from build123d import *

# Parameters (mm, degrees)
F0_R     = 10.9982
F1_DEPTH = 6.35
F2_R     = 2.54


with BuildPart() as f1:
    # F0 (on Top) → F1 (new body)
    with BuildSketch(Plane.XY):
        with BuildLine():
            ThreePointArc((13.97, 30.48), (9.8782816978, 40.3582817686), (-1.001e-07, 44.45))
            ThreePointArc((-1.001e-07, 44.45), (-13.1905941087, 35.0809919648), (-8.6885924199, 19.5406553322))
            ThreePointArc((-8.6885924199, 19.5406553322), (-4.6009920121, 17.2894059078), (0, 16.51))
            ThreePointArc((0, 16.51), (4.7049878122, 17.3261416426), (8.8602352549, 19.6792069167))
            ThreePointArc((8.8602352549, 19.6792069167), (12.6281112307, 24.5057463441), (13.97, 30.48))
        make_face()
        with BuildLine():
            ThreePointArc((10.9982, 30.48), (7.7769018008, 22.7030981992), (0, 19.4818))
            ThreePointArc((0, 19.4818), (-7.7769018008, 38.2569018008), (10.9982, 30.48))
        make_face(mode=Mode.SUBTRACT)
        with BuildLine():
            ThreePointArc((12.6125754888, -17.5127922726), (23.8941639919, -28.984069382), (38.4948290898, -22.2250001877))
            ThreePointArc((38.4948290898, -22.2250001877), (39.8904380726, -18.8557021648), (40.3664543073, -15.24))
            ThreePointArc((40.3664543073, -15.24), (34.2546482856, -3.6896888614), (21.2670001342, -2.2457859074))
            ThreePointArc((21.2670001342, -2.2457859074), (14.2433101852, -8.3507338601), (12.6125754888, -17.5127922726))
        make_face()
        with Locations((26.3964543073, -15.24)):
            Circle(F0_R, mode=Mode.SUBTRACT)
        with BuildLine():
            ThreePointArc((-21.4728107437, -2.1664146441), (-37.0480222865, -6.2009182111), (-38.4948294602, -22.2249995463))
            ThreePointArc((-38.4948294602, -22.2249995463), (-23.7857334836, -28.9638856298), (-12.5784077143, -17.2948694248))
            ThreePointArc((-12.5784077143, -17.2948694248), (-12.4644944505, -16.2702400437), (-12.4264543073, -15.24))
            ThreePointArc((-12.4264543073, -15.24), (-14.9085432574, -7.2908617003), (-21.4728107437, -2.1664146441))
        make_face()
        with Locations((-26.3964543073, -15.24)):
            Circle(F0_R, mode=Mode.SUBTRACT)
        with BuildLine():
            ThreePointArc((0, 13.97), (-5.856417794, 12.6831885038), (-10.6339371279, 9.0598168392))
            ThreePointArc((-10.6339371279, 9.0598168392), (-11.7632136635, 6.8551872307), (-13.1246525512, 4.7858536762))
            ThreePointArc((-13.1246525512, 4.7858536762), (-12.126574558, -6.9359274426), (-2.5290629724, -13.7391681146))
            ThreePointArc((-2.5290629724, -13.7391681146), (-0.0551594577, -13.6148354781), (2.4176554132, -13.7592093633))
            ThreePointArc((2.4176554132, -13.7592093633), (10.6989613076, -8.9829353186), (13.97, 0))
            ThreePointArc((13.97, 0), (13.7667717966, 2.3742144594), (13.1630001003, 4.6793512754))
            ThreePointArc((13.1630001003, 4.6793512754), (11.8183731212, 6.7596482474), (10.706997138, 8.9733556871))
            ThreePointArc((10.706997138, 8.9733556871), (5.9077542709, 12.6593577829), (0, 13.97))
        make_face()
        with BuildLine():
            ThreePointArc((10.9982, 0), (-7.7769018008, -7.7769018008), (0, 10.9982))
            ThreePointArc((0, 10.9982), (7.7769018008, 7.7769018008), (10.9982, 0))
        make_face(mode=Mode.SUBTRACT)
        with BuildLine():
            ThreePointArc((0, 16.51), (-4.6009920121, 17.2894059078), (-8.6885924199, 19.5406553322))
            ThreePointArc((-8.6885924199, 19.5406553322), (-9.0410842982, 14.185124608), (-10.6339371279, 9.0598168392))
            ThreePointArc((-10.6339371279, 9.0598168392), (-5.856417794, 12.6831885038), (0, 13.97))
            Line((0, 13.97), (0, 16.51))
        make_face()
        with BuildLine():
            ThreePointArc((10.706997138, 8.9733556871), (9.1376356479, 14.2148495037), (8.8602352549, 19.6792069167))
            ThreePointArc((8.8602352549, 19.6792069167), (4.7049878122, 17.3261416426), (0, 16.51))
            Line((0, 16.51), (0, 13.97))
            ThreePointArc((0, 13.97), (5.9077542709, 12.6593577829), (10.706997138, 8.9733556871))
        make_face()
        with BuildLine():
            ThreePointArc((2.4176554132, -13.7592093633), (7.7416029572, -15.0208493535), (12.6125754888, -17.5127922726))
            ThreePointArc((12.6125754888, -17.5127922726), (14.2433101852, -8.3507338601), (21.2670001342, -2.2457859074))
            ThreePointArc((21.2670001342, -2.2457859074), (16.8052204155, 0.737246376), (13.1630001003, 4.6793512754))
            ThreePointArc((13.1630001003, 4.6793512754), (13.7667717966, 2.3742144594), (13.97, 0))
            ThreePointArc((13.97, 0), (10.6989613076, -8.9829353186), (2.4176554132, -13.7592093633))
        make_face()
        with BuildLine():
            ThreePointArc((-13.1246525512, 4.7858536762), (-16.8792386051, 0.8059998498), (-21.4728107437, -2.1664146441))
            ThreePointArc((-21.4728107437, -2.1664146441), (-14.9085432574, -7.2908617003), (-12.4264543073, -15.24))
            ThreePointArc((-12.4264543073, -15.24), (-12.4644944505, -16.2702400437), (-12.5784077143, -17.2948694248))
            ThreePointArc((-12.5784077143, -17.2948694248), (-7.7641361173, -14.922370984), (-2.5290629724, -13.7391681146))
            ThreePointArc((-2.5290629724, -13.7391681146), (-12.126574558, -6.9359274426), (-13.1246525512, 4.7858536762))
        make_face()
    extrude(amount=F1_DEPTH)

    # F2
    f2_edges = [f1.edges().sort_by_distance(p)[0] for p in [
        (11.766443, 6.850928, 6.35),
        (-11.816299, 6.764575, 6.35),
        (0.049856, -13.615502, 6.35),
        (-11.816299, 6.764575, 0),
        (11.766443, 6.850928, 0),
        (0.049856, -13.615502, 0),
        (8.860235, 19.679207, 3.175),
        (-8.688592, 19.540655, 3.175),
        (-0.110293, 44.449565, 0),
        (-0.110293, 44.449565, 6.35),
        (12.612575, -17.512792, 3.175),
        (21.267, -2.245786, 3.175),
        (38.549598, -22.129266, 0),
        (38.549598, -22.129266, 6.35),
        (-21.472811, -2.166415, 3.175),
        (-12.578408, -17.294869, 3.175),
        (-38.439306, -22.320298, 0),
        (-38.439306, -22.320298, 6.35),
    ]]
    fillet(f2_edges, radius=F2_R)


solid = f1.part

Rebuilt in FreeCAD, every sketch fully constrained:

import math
import FreeCAD as App
import Part
import Sketcher
Q = App.Units.Quantity


def edges_at(feature, points):
    """Names of the edges that pass closest to the given points."""
    edges = feature.Shape.Edges
    near = lambda p: min(range(len(edges)), key=lambda i: edges[i].distToShape(Part.Vertex(*p))[0])
    return sorted({f"Edge{near(p) + 1}" for p in points})

doc = App.newDocument("Part")
params = doc.addObject("Spreadsheet::Sheet", "Params")
for row, (alias, value) in enumerate([
    ("sketch1_radius", "0.55 in"),
    ("sketch1_diameter", "0.866 in"),
    ("pad1_length", "0.25 in"),
    ("fillet_radius", "0.1 in"),
], start=1):
    params.set(f"A{row}", alias)
    params.set(f"B{row}", "=" + value)
    params.setAlias(f"B{row}", alias)

body = doc.addObject("PartDesign::Body", "Body")

sketch1 = body.newObject("Sketcher::SketchObject", "Sketch")
sketch1.AttachmentSupport = (doc.getObject("XY_Plane"), [""])
sketch1.MapMode = "FlatFace"
sketch1.addGeometry([
    Part.ArcOfCircle(Part.Circle(App.Vector(0, 30.5, 0), App.Vector(0, 0, 1), 14), math.radians(0), math.radians(90)),
    Part.ArcOfCircle(Part.Circle(App.Vector(0, 30.5, 0), App.Vector(0, 0, 1), 14), math.radians(90), math.radians(232)),
    Part.ArcOfCircle(Part.Circle(App.Vector(-31.5, 18.4, 0), App.Vector(0, 0, 1), 22.8), math.radians(-24), math.radians(3)),
    Part.ArcOfCircle(Part.Circle(App.Vector(-31.5, 18.4, 0), App.Vector(0, 0, 1), 22.8), math.radians(-36.45), math.radians(-24.01)),
    Part.ArcOfCircle(Part.Circle(App.Vector(-31.5, 18.4, 0), App.Vector(0, 0, 1), 22.8), math.radians(-64), math.radians(-36)),
    Part.ArcOfCircle(Part.Circle(App.Vector(-26.4, -15.2, 0), App.Vector(0, 0, 1), 14), math.radians(69), math.radians(210)),
    Part.ArcOfCircle(Part.Circle(App.Vector(-26.4, -15.2, 0), App.Vector(0, 0, 1), 14), math.radians(-150), math.radians(-8)),
    Part.ArcOfCircle(Part.Circle(App.Vector(-0.1, -36.4, 0), App.Vector(0, 0, 1), 22.8), math.radians(96), math.radians(123)),
    Part.ArcOfCircle(Part.Circle(App.Vector(-0.1, -36.4, 0), App.Vector(0, 0, 1), 22.8), math.radians(83.55), math.radians(95.99)),
    Part.ArcOfCircle(Part.Circle(App.Vector(-0.1, -36.4, 0), App.Vector(0, 0, 1), 22.8), math.radians(56), math.radians(84)),
    Part.ArcOfCircle(Part.Circle(App.Vector(26.4, -15.2, 0), App.Vector(0, 0, 1), 14), math.radians(-171), math.radians(-30)),
    Part.ArcOfCircle(Part.Circle(App.Vector(26.4, -15.2, 0), App.Vector(0, 0, 1), 14), math.radians(-30), math.radians(0)),
    Part.ArcOfCircle(Part.Circle(App.Vector(26.4, -15.2, 0), App.Vector(0, 0, 1), 14), math.radians(0), math.radians(112)),
    Part.ArcOfCircle(Part.Circle(App.Vector(31.6, 18.1, 0), App.Vector(0, 0, 1), 22.8), math.radians(-144), math.radians(-117)),
    Part.ArcOfCircle(Part.Circle(App.Vector(31.6, 18.1, 0), App.Vector(0, 0, 1), 22.8), math.radians(-156.45), math.radians(-144.01)),
    Part.ArcOfCircle(Part.Circle(App.Vector(31.6, 18.1, 0), App.Vector(0, 0, 1), 22.8), math.radians(176), math.radians(204)),
    Part.ArcOfCircle(Part.Circle(App.Vector(0, 30.5, 0), App.Vector(0, 0, 1), 14), math.radians(-51), math.radians(0)),
    Part.ArcOfCircle(Part.Circle(App.Vector(0, 30.5, 0), App.Vector(0, 0, 1), 11), math.radians(0), math.radians(270)),
    Part.ArcOfCircle(Part.Circle(App.Vector(0, 30.5, 0), App.Vector(0, 0, 1), 11), math.radians(-90), math.radians(0)),
    Part.ArcOfCircle(Part.Circle(App.Vector(0, 0, 0), App.Vector(0, 0, 1), 11), math.radians(90), math.radians(360)),
    Part.ArcOfCircle(Part.Circle(App.Vector(0, 0, 0), App.Vector(0, 0, 1), 11), math.radians(0), math.radians(90)),
    Part.Circle(App.Vector(26.4, -15.2, 0), App.Vector(0, 0, 1), 11),
    Part.Circle(App.Vector(-26.4, -15.2, 0), App.Vector(0, 0, 1), 11),
], False)
sketch1.addConstraint([
    Sketcher.Constraint("Tangent", 0, 2, 1, 1),
    Sketcher.Constraint("Coincident", 1, 2, 2, 2),
    Sketcher.Constraint("Tangent", 2, 1, 3, 2),
    Sketcher.Constraint("Tangent", 3, 1, 4, 2),
    Sketcher.Constraint("Coincident", 4, 1, 5, 1),
    Sketcher.Constraint("Tangent", 5, 2, 6, 1),
    Sketcher.Constraint("Coincident", 6, 2, 7, 2),
    Sketcher.Constraint("Tangent", 7, 1, 8, 2),
    Sketcher.Constraint("Tangent", 8, 1, 9, 2),
    Sketcher.Constraint("Coincident", 9, 1, 10, 1),
    Sketcher.Constraint("Tangent", 10, 2, 11, 1),
    Sketcher.Constraint("Tangent", 11, 2, 12, 1),
    Sketcher.Constraint("Coincident", 12, 2, 13, 2),
    Sketcher.Constraint("Tangent", 13, 1, 14, 2),
    Sketcher.Constraint("Tangent", 14, 1, 15, 2),
    Sketcher.Constraint("Coincident", 15, 1, 16, 1),
    Sketcher.Constraint("Tangent", 16, 2, 0, 1),
    Sketcher.Constraint("Tangent", 17, 1, 18, 2),
    Sketcher.Constraint("Coincident", 18, 1, 17, 2),
    Sketcher.Constraint("Tangent", 19, 1, 20, 2),
    Sketcher.Constraint("Coincident", 20, 1, 19, 2),
    Sketcher.Constraint("Coincident", 19, 3, -1, 1),
    Sketcher.Constraint("Coincident", 4, 3, 2, 3),
    Sketcher.Constraint("Coincident", 9, 3, 7, 3),
    Sketcher.Constraint("Coincident", 12, 3, 10, 3),
    Sketcher.Constraint("Coincident", 15, 3, 13, 3),
    Sketcher.Constraint("Coincident", 17, 3, 0, 3),
    Sketcher.Constraint("Coincident", 21, 3, 10, 3),
    Sketcher.Constraint("Coincident", 22, 3, 5, 3),
    Sketcher.Constraint("Equal", 0, 1),
    Sketcher.Constraint("Equal", 1, 5),
    Sketcher.Constraint("Equal", 5, 6),
    Sketcher.Constraint("Equal", 4, 7),
    Sketcher.Constraint("Equal", 6, 10),
    Sketcher.Constraint("Equal", 9, 13),
    Sketcher.Constraint("Equal", 12, 16),
    Sketcher.Constraint("Equal", 18, 19),
    Sketcher.Constraint("Equal", 20, 21),
    Sketcher.Constraint("Equal", 21, 22),
    Sketcher.Constraint("Symmetric", 5, 3, 10, 3, -2),
    Sketcher.Constraint("PointOnObject", 0, 3, -2),
    Sketcher.Constraint("PointOnObject", 0, 2, -2),
    Sketcher.Constraint("PointOnObject", 18, 1, -2),
    Sketcher.Constraint("PointOnObject", 19, 1, -2),
    Sketcher.Constraint("PointOnObject", 20, 1, -1),
    Sketcher.Constraint("Horizontal", 5, 2, 10, 2),
    Sketcher.Constraint("Horizontal", 22, 3, 11, 2),
    Sketcher.Constraint("Horizontal", 18, 3, 16, 2),
    Sketcher.Constraint("Horizontal", 16, 2, 17, 1),
    Sketcher.Constraint("Radius", 0, Q("0.55 in")),
    Sketcher.Constraint("Diameter", 21, Q("0.866 in")),
    Sketcher.Constraint("DistanceY", -1, 1, 0, 3, Q("1.2 in")),
    Sketcher.Constraint("DistanceY", 5, 3, -1, 1, Q("0.6 in")),
    Sketcher.Constraint("DistanceY", 5, 2, -1, 1, Q("0.875 in")),
    Sketcher.Constraint("Radius", 2, Q("22.833859 mm")),
    Sketcher.Constraint("DistanceX", 2, 3, -1, 1, Q("31.491499 mm")),
    Sketcher.Constraint("DistanceX", -1, 1, 12, 2, Q("21.267 mm")),
    Sketcher.Constraint("DistanceX", -1, 1, 13, 1, Q("13.163 mm")),
    Sketcher.Constraint("DistanceY", 3, 1, 1, 2, Q("14.754802 mm")),
    Sketcher.Constraint("DistanceY", 6, 2, 7, 1, Q("3.555701 mm")),
    Sketcher.Constraint("DistanceY", -1, 1, 2, 3, Q("18.352138 mm")),
    Sketcher.Constraint("DistanceX", 7, 3, -1, 1, Q("0.147668 mm")),
    Sketcher.Constraint("DistanceY", -1, 1, 13, 3, Q("18.096369 mm")),
    Sketcher.Constraint("DistanceX", 4, 1, -1, 1, Q("21.472811 mm")),
    Sketcher.Constraint("DistanceY", 6, 2, -1, 1, Q("17.294869 mm")),
    Sketcher.Constraint("DistanceY", 8, 1, -1, 1, Q("13.759209 mm")),
    Sketcher.Constraint("DistanceY", 2, 1, 1, 2, Q("10.480838 mm")),
    Sketcher.Constraint("DistanceY", 12, 2, 14, 1, Q("11.219142 mm")),
])
sketch1.setExpression("Constraints[49]", "Params.sketch1_radius")
sketch1.setExpression("Constraints[50]", "Params.sketch1_diameter")
pad1 = body.newObject("PartDesign::Pad", "Pad")
pad1.Profile = sketch1
pad1.setExpression("Length", "Params.pad1_length")
doc.recompute()

fillet = body.newObject("PartDesign::Fillet", "Fillet")
fillet.Base = (pad1, edges_at(pad1, [
    (11.818, 6.76, 6.35),
    (-11.763, 6.855, 6.35),
    (-0.055, -13.615, 6.35),
    (-11.763, 6.855, 0),
    (11.818, 6.76, 0),
    (-0.055, -13.615, 0),
    (8.86, 19.679, 3.175),
    (-8.689, 19.541, 3.175),
    (-13.191, 35.081, 0),
    (-13.191, 35.081, 6.35),
    (12.613, -17.513, 3.175),
    (21.267, -2.246, 3.175),
    (39.89, -18.856, 0),
    (39.89, -18.856, 6.35),
    (-21.473, -2.166, 3.175),
    (-12.578, -17.295, 3.175),
    (-23.786, -28.964, 0),
    (-23.786, -28.964, 6.35),
]))
fillet.setExpression("Radius", "Params.fillet_radius")

doc.recompute()
